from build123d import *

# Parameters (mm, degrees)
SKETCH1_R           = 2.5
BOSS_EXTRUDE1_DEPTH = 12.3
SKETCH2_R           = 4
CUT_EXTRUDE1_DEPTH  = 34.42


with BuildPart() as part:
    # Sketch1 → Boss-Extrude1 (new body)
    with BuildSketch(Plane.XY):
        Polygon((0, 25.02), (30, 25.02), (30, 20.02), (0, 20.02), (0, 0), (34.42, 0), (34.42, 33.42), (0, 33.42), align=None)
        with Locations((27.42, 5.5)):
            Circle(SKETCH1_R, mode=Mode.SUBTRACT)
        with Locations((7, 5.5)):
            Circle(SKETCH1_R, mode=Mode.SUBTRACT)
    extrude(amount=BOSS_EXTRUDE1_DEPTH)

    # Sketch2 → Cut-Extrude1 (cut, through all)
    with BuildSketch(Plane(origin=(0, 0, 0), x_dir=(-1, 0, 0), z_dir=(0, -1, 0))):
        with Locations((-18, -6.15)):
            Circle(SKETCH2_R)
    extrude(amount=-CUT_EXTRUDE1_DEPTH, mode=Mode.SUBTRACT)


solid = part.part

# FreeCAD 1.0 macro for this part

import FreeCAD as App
import Part
import Sketcher

V = App.Vector


def add_polygon(sketch, points):
    """Adds a closed chain of lines whose ends are joined by coincident constraints."""
    first, n = sketch.GeometryCount, len(points)
    for a, b in zip(points, points[1:] + points[:1]):
        sketch.addGeometry(Part.LineSegment(App.Vector(*a, 0), App.Vector(*b, 0)), False)
    for i in range(n):
        sketch.addConstraint(Sketcher.Constraint("Coincident", first + i, 2, first + (i + 1) % n, 1))

doc = App.newDocument("Part")
body = doc.addObject("PartDesign::Body", "Body")

sketch1 = body.newObject("Sketcher::SketchObject", "Sketch")
sketch1.AttachmentSupport = (doc.getObject("XY_Plane"), [""])
sketch1.MapMode = "FlatFace"
add_polygon(sketch1, [(0, 25.02), (30, 25.02), (30, 20.02), (0, 20.02), (0, 0), (34.42, 0), (34.42, 33.42), (0, 33.42)])
sketch1.addGeometry(Part.Circle(V(7, 5.5, 0), V(0, 0, 1), 2.5), False)
sketch1.addGeometry(Part.Circle(V(27.42, 5.5, 0), V(0, 0, 1), 2.5), False)
sketch1.addConstraint([
    Sketcher.Constraint("Horizontal", 0),
    Sketcher.Constraint("Vertical", 1),
    Sketcher.Constraint("Horizontal", 2),
    Sketcher.Constraint("Vertical", 3),
    Sketcher.Constraint("Horizontal", 4),
    Sketcher.Constraint("Vertical", 5),
    Sketcher.Constraint("Horizontal", 6),
    Sketcher.Constraint("Vertical", 7),
    Sketcher.Constraint("Coincident", 3, 2, -1, 1),
    Sketcher.Constraint("Equal", 8, 9),
    Sketcher.Constraint("PointOnObject", 6, 2, -2),
    Sketcher.Constraint("Horizontal", 8, 3, 9, 3),
    Sketcher.Constraint("Diameter", 8, 5.0),
    Sketcher.Constraint("DistanceX", 0, 1, 0, 2, 30.0),
    Sketcher.Constraint("DistanceY", 1, 2, 1, 1, 5.0),
    Sketcher.Constraint("DistanceY", 7, 2, 7, 1, 8.4),
    Sketcher.Constraint("DistanceX", -1, 1, 8, 3, 7.0),
    Sketcher.Constraint("DistanceX", 9, 3, 4, 2, 7.0),
    Sketcher.Constraint("DistanceX", 4, 1, 4, 2, 34.42),
    Sketcher.Constraint("DistanceY", 3, 2, 3, 1, 20.02),
    Sketcher.Constraint("DistanceY", -1, 1, 8, 3, 5.5),
])
pad1 = body.newObject("PartDesign::Pad", "Pad")
pad1.Profile = sketch1
pad1.Length = 12.3

sketch2 = body.newObject("Sketcher::SketchObject", "Sketch001")
sketch2.AttachmentSupport = (doc.getObject("XZ_Plane"), [""])
sketch2.MapMode = "FlatFace"
sketch2.addGeometry(Part.Circle(V(18, 6.15, 0), V(0, 0, 1), 4), False)
sketch2.addConstraint([
    Sketcher.Constraint("Diameter", 0, 8.0),
    Sketcher.Constraint("DistanceX", -1, 1, 0, 3, 18.0),
    Sketcher.Constraint("DistanceY", -1, 1, 0, 3, 6.15),
])
pocket1 = body.newObject("PartDesign::Pocket", "Pocket")
pocket1.Profile = sketch2
pocket1.Type = "ThroughAll"

doc.recompute()
